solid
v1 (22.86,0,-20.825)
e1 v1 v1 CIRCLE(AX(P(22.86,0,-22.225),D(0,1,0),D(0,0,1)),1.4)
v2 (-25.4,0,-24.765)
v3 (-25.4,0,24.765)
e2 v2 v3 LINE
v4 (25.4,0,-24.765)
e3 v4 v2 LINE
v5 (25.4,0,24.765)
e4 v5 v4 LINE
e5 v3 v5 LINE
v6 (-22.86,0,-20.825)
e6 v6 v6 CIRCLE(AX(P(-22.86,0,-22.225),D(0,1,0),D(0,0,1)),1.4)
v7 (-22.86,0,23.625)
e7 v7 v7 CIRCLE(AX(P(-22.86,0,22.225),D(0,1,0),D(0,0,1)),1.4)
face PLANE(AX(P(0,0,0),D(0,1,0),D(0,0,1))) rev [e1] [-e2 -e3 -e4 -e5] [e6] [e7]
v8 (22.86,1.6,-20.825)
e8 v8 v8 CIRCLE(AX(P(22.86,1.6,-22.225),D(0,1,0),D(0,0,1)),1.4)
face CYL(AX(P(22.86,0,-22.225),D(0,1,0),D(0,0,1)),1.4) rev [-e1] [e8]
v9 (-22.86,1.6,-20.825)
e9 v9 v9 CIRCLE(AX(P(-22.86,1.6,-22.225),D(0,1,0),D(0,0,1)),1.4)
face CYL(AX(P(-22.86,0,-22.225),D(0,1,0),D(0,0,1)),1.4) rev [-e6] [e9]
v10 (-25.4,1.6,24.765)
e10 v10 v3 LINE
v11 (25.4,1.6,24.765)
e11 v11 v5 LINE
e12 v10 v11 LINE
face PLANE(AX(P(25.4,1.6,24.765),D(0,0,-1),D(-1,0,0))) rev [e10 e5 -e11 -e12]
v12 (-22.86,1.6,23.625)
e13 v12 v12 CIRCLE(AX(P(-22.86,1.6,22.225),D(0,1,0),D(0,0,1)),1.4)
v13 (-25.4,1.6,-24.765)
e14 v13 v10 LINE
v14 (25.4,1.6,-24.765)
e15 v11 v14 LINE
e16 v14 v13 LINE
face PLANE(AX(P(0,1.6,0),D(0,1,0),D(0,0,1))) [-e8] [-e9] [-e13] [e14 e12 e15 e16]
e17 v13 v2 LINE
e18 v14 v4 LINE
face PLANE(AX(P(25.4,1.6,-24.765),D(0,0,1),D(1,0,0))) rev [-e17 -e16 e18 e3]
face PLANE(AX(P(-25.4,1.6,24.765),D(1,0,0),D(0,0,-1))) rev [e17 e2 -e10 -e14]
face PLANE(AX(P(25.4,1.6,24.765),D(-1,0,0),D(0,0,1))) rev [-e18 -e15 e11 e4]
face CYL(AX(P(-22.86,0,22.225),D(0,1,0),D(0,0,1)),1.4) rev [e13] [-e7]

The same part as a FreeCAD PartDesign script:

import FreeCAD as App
import Part
import Sketcher
from FreeCAD import Vector
Q = App.Units.Quantity

doc = App.newDocument("Part")
body = doc.addObject("PartDesign::Body", "Body")

sketch1 = body.newObject("Sketcher::SketchObject", "Sketch")
sketch1.AttachmentSupport = (doc.getObject("XZ_Plane"), [""])
sketch1.MapMode = "FlatFace"
sketch1.addGeometry([
    Part.LineSegment(Vector(-25.4, -24.765, 0), Vector(-25.4, 24.765, 0)),
    Part.LineSegment(Vector(-25.4, 24.765, 0), Vector(25.4, 24.765, 0)),
    Part.LineSegment(Vector(25.4, 24.765, 0), Vector(25.4, -24.765, 0)),
    Part.LineSegment(Vector(25.4, -24.765, 0), Vector(-25.4, -24.765, 0)),
], False)
sketch1.addConstraint([
    Sketcher.Constraint("Coincident", 0, 2, 1, 1),
    Sketcher.Constraint("Coincident", 1, 2, 2, 1),
    Sketcher.Constraint("Coincident", 2, 2, 3, 1),
    Sketcher.Constraint("Coincident", 3, 2, 0, 1),
    Sketcher.Constraint("Vertical", 0),
    Sketcher.Constraint("Horizontal", 1),
    Sketcher.Constraint("Vertical", 2),
    Sketcher.Constraint("Horizontal", 3),
    Sketcher.Constraint("Symmetric", 0, 2, 2, 2, -1, 1),
    Sketcher.Constraint("DistanceX", 1, 1, 1, 2, Q("50.8 mm")),
    Sketcher.Constraint("DistanceY", 0, 1, 0, 2, Q("49.53 mm")),
])
pad1 = body.newObject("PartDesign::Pad", "Pad")
pad1.Profile = sketch1
pad1.Length = 1.6
pad1.Reversed = True

sketch2 = body.newObject("Sketcher::SketchObject", "Sketch001")
sketch2.AttachmentSupport = (doc.getObject("XZ_Plane"), [""])
sketch2.MapMode = "FlatFace"
sketch2.AttachmentOffset = App.Placement(Vector(0, 0, -1.6), App.Rotation())
sketch2.addGeometry([
    Part.Circle(Vector(-22.86, -22.225, 0), Vector(0, 0, 1), 1.4),
    Part.Circle(Vector(22.86, -22.225, 0), Vector(0, 0, 1), 1.4),
    Part.Circle(Vector(-22.86, 22.225, 0), Vector(0, 0, 1), 1.4),
], False)
sketch2.addConstraint([
    Sketcher.Constraint("Equal", 0, 1),
    Sketcher.Constraint("Equal", 1, 2),
    Sketcher.Constraint("Symmetric", 1, 3, 2, 3, -1, 1),
    Sketcher.Constraint("Symmetric", 0, 3, 1, 3, -2),
    Sketcher.Constraint("Diameter", 0, Q("2.8 mm")),
    Sketcher.Constraint("DistanceX", 0, 3, -1, 1, Q("22.86 mm")),
    Sketcher.Constraint("DistanceY", 0, 3, 2, 3, Q("44.45 mm")),
])
pocket1 = body.newObject("PartDesign::Pocket", "Pocket")
pocket1.Profile = sketch2
pocket1.Length = 1.6
pocket1.Reversed = True

doc.recompute()
